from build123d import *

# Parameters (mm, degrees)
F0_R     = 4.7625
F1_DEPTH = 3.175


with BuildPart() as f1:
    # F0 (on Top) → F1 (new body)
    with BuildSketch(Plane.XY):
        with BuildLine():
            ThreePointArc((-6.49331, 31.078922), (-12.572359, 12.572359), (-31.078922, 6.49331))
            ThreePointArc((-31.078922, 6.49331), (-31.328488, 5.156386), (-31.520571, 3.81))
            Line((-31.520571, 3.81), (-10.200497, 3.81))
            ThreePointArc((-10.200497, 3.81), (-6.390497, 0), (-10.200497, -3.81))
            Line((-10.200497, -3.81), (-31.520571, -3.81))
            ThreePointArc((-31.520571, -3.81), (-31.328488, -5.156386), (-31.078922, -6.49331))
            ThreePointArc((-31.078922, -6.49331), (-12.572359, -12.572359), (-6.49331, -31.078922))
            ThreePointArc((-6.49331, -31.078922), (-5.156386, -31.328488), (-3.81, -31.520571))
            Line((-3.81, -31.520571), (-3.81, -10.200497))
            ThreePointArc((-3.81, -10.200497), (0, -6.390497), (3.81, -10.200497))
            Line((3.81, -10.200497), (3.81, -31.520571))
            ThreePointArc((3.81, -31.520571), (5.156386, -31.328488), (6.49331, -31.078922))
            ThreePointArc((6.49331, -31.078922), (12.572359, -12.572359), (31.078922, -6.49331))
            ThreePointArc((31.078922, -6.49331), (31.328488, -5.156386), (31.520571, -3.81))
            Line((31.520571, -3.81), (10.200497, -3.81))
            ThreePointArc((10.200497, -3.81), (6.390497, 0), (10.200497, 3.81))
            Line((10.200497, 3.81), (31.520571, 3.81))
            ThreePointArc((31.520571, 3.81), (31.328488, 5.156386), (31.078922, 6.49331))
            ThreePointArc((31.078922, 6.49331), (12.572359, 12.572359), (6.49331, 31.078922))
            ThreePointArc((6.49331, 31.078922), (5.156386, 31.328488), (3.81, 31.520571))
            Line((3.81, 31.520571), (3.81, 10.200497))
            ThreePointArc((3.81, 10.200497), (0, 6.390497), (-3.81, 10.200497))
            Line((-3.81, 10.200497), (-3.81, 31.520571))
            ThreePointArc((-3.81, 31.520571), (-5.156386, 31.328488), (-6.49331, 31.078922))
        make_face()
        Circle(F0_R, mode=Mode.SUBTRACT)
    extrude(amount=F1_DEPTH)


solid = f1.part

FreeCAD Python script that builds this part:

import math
import FreeCAD as App
import Part
import Sketcher
from FreeCAD import Vector
Q = App.Units.Quantity

doc = App.newDocument("Part")
body = doc.addObject("PartDesign::Body", "Body")

sketch1 = body.newObject("Sketcher::SketchObject", "Sketch")
sketch1.AttachmentSupport = (doc.getObject("XY_Plane"), [""])
sketch1.MapMode = "FlatFace"
sketch1.addGeometry(Part.ArcOfCircle(Part.Circle(Vector(-27.838796, 27.838796, 0), Vector(0, 0, 1), 21.590002), math.radians(-98.631291), math.radians(8.631291)), False)
sketch1.addGeometry(Part.ArcOfCircle(Part.Circle(Vector(0.000081, -0.000019, 0), Vector(0, 0, 1), 31.750083), math.radians(168.198964), math.radians(173.107881)), False)
sketch1.addGeometry(Part.LineSegment(Vector(-31.520571, 3.81, 0), Vector(-10.200497, 3.81, 0)), False)
sketch1.addGeometry(Part.ArcOfCircle(Part.Circle(Vector(-10.200497, 0, 0), Vector(0, 0, 1), 3.81), math.radians(-90), math.radians(90)), False)
sketch1.addGeometry(Part.LineSegment(Vector(-10.200497, -3.81, 0), Vector(-31.520571, -3.81, 0)), False)
sketch1.addGeometry(Part.ArcOfCircle(Part.Circle(Vector(0.000081, 0.000019, 0), Vector(0, 0, 1), 31.750083), math.radians(-173.107881), math.radians(-168.198964)), False)
sketch1.addGeometry(Part.ArcOfCircle(Part.Circle(Vector(-27.838796, -27.838796, 0), Vector(0, 0, 1), 21.590002), math.radians(-8.631291), math.radians(98.631291)), False)
sketch1.addGeometry(Part.ArcOfCircle(Part.Circle(Vector(0.000019, 0.000081, 0), Vector(0, 0, 1), 31.750083), math.radians(-101.801036), math.radians(-96.892119)), False)
sketch1.addGeometry(Part.LineSegment(Vector(-3.81, -31.520571, 0), Vector(-3.81, -10.200497, 0)), False)
sketch1.addGeometry(Part.ArcOfCircle(Part.Circle(Vector(0, -10.200497, 0), Vector(0, 0, 1), 3.81), math.radians(0), math.radians(180)), False)
sketch1.addGeometry(Part.LineSegment(Vector(3.81, -10.200497, 0), Vector(3.81, -31.520571, 0)), False)
sketch1.addGeometry(Part.ArcOfCircle(Part.Circle(Vector(-0.000019, 0.000081, 0), Vector(0, 0, 1), 31.750083), math.radians(-83.107881), math.radians(-78.198964)), False)
sketch1.addGeometry(Part.ArcOfCircle(Part.Circle(Vector(27.838796, -27.838796, 0), Vector(0, 0, 1), 21.590002), math.radians(81.368709), math.radians(188.631291)), False)
sketch1.addGeometry(Part.ArcOfCircle(Part.Circle(Vector(-0.000081, 0.000019, 0), Vector(0, 0, 1), 31.750083), math.radians(-11.801036), math.radians(-6.892119)), False)
sketch1.addGeometry(Part.LineSegment(Vector(31.520571, -3.81, 0), Vector(10.200497, -3.81, 0)), False)
sketch1.addGeometry(Part.ArcOfCircle(Part.Circle(Vector(10.200497, 0, 0), Vector(0, 0, 1), 3.81), math.radians(90), math.radians(270)), False)
sketch1.addGeometry(Part.LineSegment(Vector(10.200497, 3.81, 0), Vector(31.520571, 3.81, 0)), False)
sketch1.addGeometry(Part.ArcOfCircle(Part.Circle(Vector(-0.000081, -0.000019, 0), Vector(0, 0, 1), 31.750083), math.radians(6.892119), math.radians(11.801036)), False)
sketch1.addGeometry(Part.ArcOfCircle(Part.Circle(Vector(27.838796, 27.838796, 0), Vector(0, 0, 1), 21.590002), math.radians(171.368709), math.radians(278.631291)), False)
sketch1.addGeometry(Part.ArcOfCircle(Part.Circle(Vector(-0.000019, -0.000081, 0), Vector(0, 0, 1), 31.750083), math.radians(78.198964), math.radians(83.107881)), False)
sketch1.addGeometry(Part.LineSegment(Vector(3.81, 31.520571, 0), Vector(3.81, 10.200497, 0)), False)
sketch1.addGeometry(Part.ArcOfCircle(Part.Circle(Vector(0, 10.200497, 0), Vector(0, 0, 1), 3.81), math.radians(180), math.radians(360)), False)
sketch1.addGeometry(Part.LineSegment(Vector(-3.81, 10.200497, 0), Vector(-3.81, 31.520571, 0)), False)
sketch1.addGeometry(Part.ArcOfCircle(Part.Circle(Vector(0.000019, -0.000081, 0), Vector(0, 0, 1), 31.750083), math.radians(96.892119), math.radians(101.801036)), False)
sketch1.addGeometry(Part.Circle(Vector(0, 0, 0), Vector(0, 0, 1), 4.7625), False)
sketch1.addConstraint(Sketcher.Constraint("Coincident", 0, 1, 1, 1))
sketch1.addConstraint(Sketcher.Constraint("Coincident", 1, 2, 2, 1))
sketch1.addConstraint(Sketcher.Constraint("Tangent", 2, 2, 3, 2))
sketch1.addConstraint(Sketcher.Constraint("Tangent", 3, 1, 4, 1))
sketch1.addConstraint(Sketcher.Constraint("Coincident", 4, 2, 5, 1))
sketch1.addConstraint(Sketcher.Constraint("Coincident", 5, 2, 6, 2))
sketch1.addConstraint(Sketcher.Constraint("Coincident", 6, 1, 7, 1))
sketch1.addConstraint(Sketcher.Constraint("Coincident", 7, 2, 8, 1))
sketch1.addConstraint(Sketcher.Constraint("Tangent", 8, 2, 9, 2))
sketch1.addConstraint(Sketcher.Constraint("Tangent", 9, 1, 10, 1))
sketch1.addConstraint(Sketcher.Constraint("Coincident", 10, 2, 11, 1))
sketch1.addConstraint(Sketcher.Constraint("Coincident", 11, 2, 12, 2))
sketch1.addConstraint(Sketcher.Constraint("Coincident", 12, 1, 13, 1))
sketch1.addConstraint(Sketcher.Constraint("Coincident", 13, 2, 14, 1))
sketch1.addConstraint(Sketcher.Constraint("Tangent", 14, 2, 15, 2))
sketch1.addConstraint(Sketcher.Constraint("Tangent", 15, 1, 16, 1))
sketch1.addConstraint(Sketcher.Constraint("Coincident", 16, 2, 17, 1))
sketch1.addConstraint(Sketcher.Constraint("Coincident", 17, 2, 18, 2))
sketch1.addConstraint(Sketcher.Constraint("Coincident", 18, 1, 19, 1))
sketch1.addConstraint(Sketcher.Constraint("Coincident", 19, 2, 20, 1))
sketch1.addConstraint(Sketcher.Constraint("Tangent", 20, 2, 21, 2))
sketch1.addConstraint(Sketcher.Constraint("Tangent", 21, 1, 22, 1))
sketch1.addConstraint(Sketcher.Constraint("Coincident", 22, 2, 23, 1))
sketch1.addConstraint(Sketcher.Constraint("Coincident", 23, 2, 0, 2))
sketch1.addConstraint(Sketcher.Constraint("Horizontal", 2))
sketch1.addConstraint(Sketcher.Constraint("Horizontal", 4))
sketch1.addConstraint(Sketcher.Constraint("Vertical", 8))
sketch1.addConstraint(Sketcher.Constraint("Vertical", 10))
sketch1.addConstraint(Sketcher.Constraint("Horizontal", 14))
sketch1.addConstraint(Sketcher.Constraint("Horizontal", 16))
sketch1.addConstraint(Sketcher.Constraint("Vertical", 20))
sketch1.addConstraint(Sketcher.Constraint("Vertical", 22))
sketch1.addConstraint(Sketcher.Constraint("Coincident", 24, 3, -1, 1))
sketch1.addConstraint(Sketcher.Constraint("Equal", 1, 5))
sketch1.addConstraint(Sketcher.Constraint("Equal", 0, 6))
sketch1.addConstraint(Sketcher.Constraint("Equal", 5, 7))
sketch1.addConstraint(Sketcher.Constraint("Equal", 3, 9))
sketch1.addConstraint(Sketcher.Constraint("Equal", 7, 11))
sketch1.addConstraint(Sketcher.Constraint("Equal", 6, 12))
sketch1.addConstraint(Sketcher.Constraint("Equal", 11, 13))
sketch1.addConstraint(Sketcher.Constraint("Equal", 9, 15))
sketch1.addConstraint(Sketcher.Constraint("Equal", 13, 17))
sketch1.addConstraint(Sketcher.Constraint("Equal", 12, 18))
sketch1.addConstraint(Sketcher.Constraint("Equal", 17, 19))
sketch1.addConstraint(Sketcher.Constraint("Equal", 15, 21))
sketch1.addConstraint(Sketcher.Constraint("Equal", 19, 23))
sketch1.addConstraint(Sketcher.Constraint("Symmetric", 0, 3, 12, 3, -1, 1))
sketch1.addConstraint(Sketcher.Constraint("Symmetric", 1, 3, 13, 3, -1, 1))
sketch1.addConstraint(Sketcher.Constraint("Symmetric", 3, 3, 15, 3, -1, 1))
sketch1.addConstraint(Sketcher.Constraint("Symmetric", 5, 3, 17, 3, -1, 1))
sketch1.addConstraint(Sketcher.Constraint("Symmetric", 6, 3, 18, 3, -1, 1))
sketch1.addConstraint(Sketcher.Constraint("Symmetric", 7, 3, 19, 3, -1, 1))
sketch1.addConstraint(Sketcher.Constraint("Symmetric", 9, 3, 21, 3, -1, 1))
sketch1.addConstraint(Sketcher.Constraint("Symmetric", 11, 3, 23, 3, -1, 1))
sketch1.addConstraint(Sketcher.Constraint("Symmetric", 7, 3, 11, 3, -2))
sketch1.addConstraint(Sketcher.Constraint("Symmetric", 6, 3, 12, 3, -2))
sketch1.addConstraint(Sketcher.Constraint("Symmetric", 5, 3, 13, 3, -2))
sketch1.addConstraint(Sketcher.Constraint("PointOnObject", 3, 3, -1))
sketch1.addConstraint(Sketcher.Constraint("PointOnObject", 9, 3, -2))
sketch1.addConstraint(Sketcher.Constraint("Equal", 16, 8))
sketch1.addConstraint(Sketcher.Constraint("Radius", 0, Q("0.8500001 in")))
sketch1.addConstraint(Sketcher.Constraint("Radius", 3, Q("0.15 in")))
sketch1.addConstraint(Sketcher.Constraint("Diameter", 24, Q("0.375 in")))
sketch1.addConstraint(Sketcher.Constraint("Radius", 1, Q("31.750083 mm")))
sketch1.addConstraint(Sketcher.Constraint("DistanceX", 0, 3, 3, 3, Q("17.638299 mm")))
sketch1.addConstraint(Sketcher.Constraint("DistanceY", 1, 3, 7, 3, Q("0.0001 mm")))
sketch1.addConstraint(Sketcher.Constraint("DistanceY", 6, 3, 9, 3, Q("17.638299 mm")))
sketch1.addConstraint(Sketcher.Constraint("DistanceX", 11, 3, 5, 3, Q("0.0001 mm")))
sketch1.addConstraint(Sketcher.Constraint("DistanceX", 2, 1, 2, 2, Q("21.320074 mm")))
sketch1.addConstraint(Sketcher.Constraint("DistanceY", -1, 1, 0, 1, Q("6.49331 mm")))
sketch1.addConstraint(Sketcher.Constraint("DistanceX", 1, 2, -1, 1, Q("31.520571 mm")))
pad1 = body.newObject("PartDesign::Pad", "Pad")
pad1.Profile = sketch1
pad1.Length = Q("0.125 in")

doc.recompute()
